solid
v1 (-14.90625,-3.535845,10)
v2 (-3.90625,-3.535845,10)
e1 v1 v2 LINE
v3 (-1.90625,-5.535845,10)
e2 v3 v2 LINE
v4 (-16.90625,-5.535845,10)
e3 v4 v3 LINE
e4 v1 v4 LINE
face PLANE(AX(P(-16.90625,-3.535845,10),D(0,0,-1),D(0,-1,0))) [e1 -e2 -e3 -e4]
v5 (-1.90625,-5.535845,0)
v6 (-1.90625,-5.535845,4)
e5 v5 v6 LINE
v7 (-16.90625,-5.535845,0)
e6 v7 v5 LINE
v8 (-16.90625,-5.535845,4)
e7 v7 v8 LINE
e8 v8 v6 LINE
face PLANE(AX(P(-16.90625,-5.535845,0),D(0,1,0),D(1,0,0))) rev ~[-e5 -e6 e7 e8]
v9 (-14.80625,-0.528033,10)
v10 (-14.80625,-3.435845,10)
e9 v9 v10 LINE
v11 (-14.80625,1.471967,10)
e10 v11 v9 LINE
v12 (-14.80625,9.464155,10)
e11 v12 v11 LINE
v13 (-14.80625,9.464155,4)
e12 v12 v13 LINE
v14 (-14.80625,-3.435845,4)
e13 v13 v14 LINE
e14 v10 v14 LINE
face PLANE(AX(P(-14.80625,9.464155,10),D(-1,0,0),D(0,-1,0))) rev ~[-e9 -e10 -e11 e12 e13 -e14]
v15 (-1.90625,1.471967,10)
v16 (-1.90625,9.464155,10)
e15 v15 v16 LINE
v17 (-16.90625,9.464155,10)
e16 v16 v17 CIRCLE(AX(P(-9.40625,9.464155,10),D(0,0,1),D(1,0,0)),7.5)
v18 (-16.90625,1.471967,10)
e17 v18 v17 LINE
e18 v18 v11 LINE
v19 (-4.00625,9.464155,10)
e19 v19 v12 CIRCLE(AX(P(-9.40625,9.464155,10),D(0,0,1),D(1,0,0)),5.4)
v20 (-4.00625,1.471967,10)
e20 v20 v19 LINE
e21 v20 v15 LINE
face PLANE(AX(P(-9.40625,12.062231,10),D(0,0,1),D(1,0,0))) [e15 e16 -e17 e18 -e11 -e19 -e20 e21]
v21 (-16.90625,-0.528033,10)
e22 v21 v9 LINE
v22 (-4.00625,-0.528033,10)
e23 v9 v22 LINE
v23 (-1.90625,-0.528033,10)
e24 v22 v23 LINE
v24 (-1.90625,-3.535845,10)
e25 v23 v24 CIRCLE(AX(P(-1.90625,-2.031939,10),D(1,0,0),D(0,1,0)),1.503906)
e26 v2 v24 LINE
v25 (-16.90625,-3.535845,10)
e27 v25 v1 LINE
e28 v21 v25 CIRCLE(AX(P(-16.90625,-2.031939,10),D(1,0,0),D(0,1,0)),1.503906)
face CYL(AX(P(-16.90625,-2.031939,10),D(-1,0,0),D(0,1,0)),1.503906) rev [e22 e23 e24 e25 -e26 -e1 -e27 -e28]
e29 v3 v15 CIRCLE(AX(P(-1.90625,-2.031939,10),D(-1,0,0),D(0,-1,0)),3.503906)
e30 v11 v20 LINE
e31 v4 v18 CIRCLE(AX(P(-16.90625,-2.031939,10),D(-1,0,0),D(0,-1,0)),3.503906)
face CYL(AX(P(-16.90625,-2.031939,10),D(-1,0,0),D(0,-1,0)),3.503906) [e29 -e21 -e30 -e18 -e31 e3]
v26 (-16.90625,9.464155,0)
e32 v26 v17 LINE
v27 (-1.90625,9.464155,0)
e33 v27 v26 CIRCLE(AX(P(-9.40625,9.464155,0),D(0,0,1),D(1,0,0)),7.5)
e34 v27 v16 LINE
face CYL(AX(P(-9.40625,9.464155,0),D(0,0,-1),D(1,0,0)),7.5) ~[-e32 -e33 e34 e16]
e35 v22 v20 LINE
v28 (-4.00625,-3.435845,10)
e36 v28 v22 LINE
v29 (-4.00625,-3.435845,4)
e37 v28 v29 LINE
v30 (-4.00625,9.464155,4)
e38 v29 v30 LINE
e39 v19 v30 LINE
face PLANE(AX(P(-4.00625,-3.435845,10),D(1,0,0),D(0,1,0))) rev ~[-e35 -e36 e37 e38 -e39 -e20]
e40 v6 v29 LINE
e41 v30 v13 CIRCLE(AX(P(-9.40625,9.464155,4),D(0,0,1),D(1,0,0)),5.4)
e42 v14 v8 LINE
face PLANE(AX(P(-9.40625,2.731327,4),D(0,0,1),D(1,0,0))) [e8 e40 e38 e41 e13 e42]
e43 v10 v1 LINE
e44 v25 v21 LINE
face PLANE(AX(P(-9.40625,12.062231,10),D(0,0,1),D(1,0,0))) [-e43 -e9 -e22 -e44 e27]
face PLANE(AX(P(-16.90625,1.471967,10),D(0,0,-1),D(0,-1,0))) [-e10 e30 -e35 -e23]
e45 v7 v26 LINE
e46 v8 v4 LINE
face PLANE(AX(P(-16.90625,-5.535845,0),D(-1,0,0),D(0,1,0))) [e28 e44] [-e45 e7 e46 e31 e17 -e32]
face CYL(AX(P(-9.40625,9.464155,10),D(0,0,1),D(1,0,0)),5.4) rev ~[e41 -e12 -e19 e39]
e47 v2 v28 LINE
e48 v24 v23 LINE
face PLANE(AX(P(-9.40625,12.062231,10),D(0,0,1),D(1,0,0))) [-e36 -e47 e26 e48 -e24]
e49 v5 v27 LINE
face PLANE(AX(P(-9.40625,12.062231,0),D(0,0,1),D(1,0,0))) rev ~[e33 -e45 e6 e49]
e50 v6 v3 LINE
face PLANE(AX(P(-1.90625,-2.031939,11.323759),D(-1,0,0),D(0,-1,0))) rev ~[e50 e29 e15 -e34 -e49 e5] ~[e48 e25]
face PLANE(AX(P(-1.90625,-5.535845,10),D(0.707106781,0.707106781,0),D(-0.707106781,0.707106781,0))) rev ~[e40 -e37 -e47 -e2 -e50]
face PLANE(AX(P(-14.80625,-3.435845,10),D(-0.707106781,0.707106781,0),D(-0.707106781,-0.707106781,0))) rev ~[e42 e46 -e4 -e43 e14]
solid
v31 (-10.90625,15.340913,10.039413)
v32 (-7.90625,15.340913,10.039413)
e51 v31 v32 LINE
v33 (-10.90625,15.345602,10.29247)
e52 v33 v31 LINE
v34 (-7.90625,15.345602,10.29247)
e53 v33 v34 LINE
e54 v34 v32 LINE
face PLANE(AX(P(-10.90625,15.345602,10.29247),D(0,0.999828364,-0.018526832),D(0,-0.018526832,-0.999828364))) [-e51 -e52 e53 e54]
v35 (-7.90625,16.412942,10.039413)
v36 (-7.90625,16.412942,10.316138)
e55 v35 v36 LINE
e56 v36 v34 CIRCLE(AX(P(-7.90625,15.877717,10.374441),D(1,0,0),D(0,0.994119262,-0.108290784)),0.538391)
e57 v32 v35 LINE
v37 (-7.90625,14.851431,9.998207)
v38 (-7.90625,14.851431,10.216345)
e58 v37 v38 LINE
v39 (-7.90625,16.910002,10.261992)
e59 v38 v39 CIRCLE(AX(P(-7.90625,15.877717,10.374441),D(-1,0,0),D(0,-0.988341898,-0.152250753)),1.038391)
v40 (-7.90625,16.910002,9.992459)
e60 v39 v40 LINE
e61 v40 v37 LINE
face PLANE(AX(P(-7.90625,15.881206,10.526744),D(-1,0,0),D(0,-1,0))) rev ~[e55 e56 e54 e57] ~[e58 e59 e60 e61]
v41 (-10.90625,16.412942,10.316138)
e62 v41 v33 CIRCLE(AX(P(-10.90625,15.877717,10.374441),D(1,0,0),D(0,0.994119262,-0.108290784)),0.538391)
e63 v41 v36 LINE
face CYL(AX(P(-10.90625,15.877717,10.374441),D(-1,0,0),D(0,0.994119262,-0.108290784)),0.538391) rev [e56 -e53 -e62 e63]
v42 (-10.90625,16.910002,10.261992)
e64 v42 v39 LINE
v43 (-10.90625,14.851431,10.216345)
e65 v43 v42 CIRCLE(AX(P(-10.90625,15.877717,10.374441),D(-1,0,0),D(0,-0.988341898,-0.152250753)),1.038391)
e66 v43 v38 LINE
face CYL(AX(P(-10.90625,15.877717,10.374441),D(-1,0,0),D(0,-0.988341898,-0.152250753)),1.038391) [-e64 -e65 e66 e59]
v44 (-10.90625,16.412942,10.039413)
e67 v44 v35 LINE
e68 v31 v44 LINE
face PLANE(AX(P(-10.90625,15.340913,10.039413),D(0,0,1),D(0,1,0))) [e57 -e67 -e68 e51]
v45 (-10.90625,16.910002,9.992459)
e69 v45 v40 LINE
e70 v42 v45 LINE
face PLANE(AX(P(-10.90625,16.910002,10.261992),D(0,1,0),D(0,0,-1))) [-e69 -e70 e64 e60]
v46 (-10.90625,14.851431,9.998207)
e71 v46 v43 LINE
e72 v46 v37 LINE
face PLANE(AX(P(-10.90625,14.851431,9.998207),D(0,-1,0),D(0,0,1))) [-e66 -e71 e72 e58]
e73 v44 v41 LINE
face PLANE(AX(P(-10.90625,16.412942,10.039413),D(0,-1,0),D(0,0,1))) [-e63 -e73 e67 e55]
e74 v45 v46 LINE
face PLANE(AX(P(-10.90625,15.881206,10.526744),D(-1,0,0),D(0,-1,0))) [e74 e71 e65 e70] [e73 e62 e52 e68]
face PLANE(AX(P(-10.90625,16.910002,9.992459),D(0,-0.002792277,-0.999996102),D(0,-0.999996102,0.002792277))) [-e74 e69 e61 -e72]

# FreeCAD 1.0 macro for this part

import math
import FreeCAD as App
import Part
import Sketcher
from FreeCAD import Vector
Q = App.Units.Quantity

doc = App.newDocument("Part")
body = doc.addObject("PartDesign::Body", "Body")

# Sketch on XY plane
sketch1 = body.newObject("Sketcher::SketchObject", "Sketch")
sketch1.AttachmentSupport = (doc.getObject("XY_Plane"), [""])
sketch1.MapMode = "FlatFace"
sketch1.addGeometry([
    Part.ArcOfCircle(Part.Circle(Vector(-9, 9, 0), Vector(0, 0, 1), 8), math.radians(0), math.radians(180)),
    Part.LineSegment(Vector(-17, 9, 0), Vector(-17, -6, 0)),
    Part.LineSegment(Vector(-17, -6, 0), Vector(-2, -6, 0)),
    Part.LineSegment(Vector(-2, -6, 0), Vector(-2, 9, 0)),
], False)
sketch1.addConstraint([
    Sketcher.Constraint("Tangent", 0, 2, 1, 1),
    Sketcher.Constraint("Coincident", 1, 2, 2, 1),
    Sketcher.Constraint("Coincident", 2, 2, 3, 1),
    Sketcher.Constraint("Tangent", 3, 2, 0, 1),
    Sketcher.Constraint("Vertical", 1),
    Sketcher.Constraint("Horizontal", 2),
    Sketcher.Constraint("Vertical", 3),
    Sketcher.Constraint("Equal", 2, 1),
    Sketcher.Constraint("Radius", 0, Q("7.5 mm")),
    Sketcher.Constraint("DistanceX", 0, 3, -1, 1, Q("9.40625 mm")),
    Sketcher.Constraint("DistanceY", -1, 1, 0, 3, Q("9.464155 mm")),
])
pad1 = body.newObject("PartDesign::Pad", "Pad")
pad1.Profile = sketch1
pad1.Length = 10

# Sketch on XY plane
sketch2 = body.newObject("Sketcher::SketchObject", "Sketch001")
sketch2.AttachmentSupport = (doc.getObject("XY_Plane"), [""])
sketch2.MapMode = "FlatFace"
sketch2.AttachmentOffset = App.Placement(Vector(0, 0, 10), App.Rotation())
sketch2.addGeometry([
    Part.ArcOfCircle(Part.Circle(Vector(-9.4, 9.5, 0), Vector(0, 0, 1), 5.4), math.radians(0), math.radians(180)),  # 0
    Part.LineSegment(Vector(-14.8, 9.5, 0), Vector(-14.8, -3.4, 0)),  # 1
    Part.LineSegment(Vector(-14.8, -3.4, 0), Vector(-16.9, -5.5, 0)),  # 2
    Part.LineSegment(Vector(-16.9, -5.5, 0), Vector(-1.9, -5.5, 0)),  # 3
    Part.LineSegment(Vector(-1.9, -5.5, 0), Vector(-4, -3.4, 0)),  # 4
    Part.LineSegment(Vector(-4, -3.4, 0), Vector(-4, 9.5, 0)),  # 5
], False)
sketch2.addConstraint([
    Sketcher.Constraint("Tangent", 0, 2, 1, 1),
    Sketcher.Constraint("Coincident", 1, 2, 2, 1),
    Sketcher.Constraint("Coincident", 2, 2, 3, 1),
    Sketcher.Constraint("Coincident", 3, 2, 4, 1),
    Sketcher.Constraint("Coincident", 4, 2, 5, 1),
    Sketcher.Constraint("Tangent", 5, 2, 0, 1),
    Sketcher.Constraint("Vertical", 1),
    Sketcher.Constraint("Horizontal", 3),
    Sketcher.Constraint("Vertical", 5),
    Sketcher.Constraint("Perpendicular", 2, 4),
    Sketcher.Constraint("Horizontal", 1, 2, 4, 2),
    Sketcher.Constraint("Equal", 2, 4),
    Sketcher.Constraint("Radius", 0, Q("5.4 mm")),
    Sketcher.Constraint("DistanceX", 3, 1, 3, 2, Q("15 mm")),
    Sketcher.Constraint("DistanceY", 1, 2, 1, 1, Q("12.9 mm")),
    Sketcher.Constraint("DistanceX", 0, 3, -1, 1, Q("9.40625 mm")),
    Sketcher.Constraint("DistanceY", -1, 1, 0, 3, Q("9.464155 mm")),
])
pocket1 = body.newObject("PartDesign::Pocket", "Pocket")
pocket1.Profile = sketch2
pocket1.Length = 6

# Sketch on YZ plane
sketch3 = body.newObject("Sketcher::SketchObject", "Sketch002")
sketch3.AttachmentSupport = (doc.getObject("YZ_Plane"), [""])
sketch3.MapMode = "FlatFace"
sketch3.AttachmentOffset = App.Placement(Vector(0, 0, -16.90625), App.Rotation())
sketch3.addGeometry([
    Part.LineSegment(Vector(-3.5, 10, 0), Vector(-5.5, 10, 0)),
    Part.ArcOfCircle(Part.Circle(Vector(-2, 10, 0), Vector(0, 0, 1), 3.5), math.radians(0), math.radians(180)),
    Part.LineSegment(Vector(1.5, 10, 0), Vector(-0.5, 10, 0)),
    Part.ArcOfCircle(Part.Circle(Vector(-2, 10, 0), Vector(0, 0, 1), 1.5), math.radians(0), math.radians(180)),
], False)
sketch3.addConstraint([
    Sketcher.Constraint("Coincident", 0, 2, 1, 2),
    Sketcher.Constraint("Coincident", 1, 1, 2, 1),
    Sketcher.Constraint("Coincident", 2, 2, 3, 1),
    Sketcher.Constraint("Coincident", 3, 2, 0, 1),
    Sketcher.Constraint("Horizontal", 0),
    Sketcher.Constraint("Horizontal", 2),
    Sketcher.Constraint("Coincident", 3, 3, 1, 3),
    Sketcher.Constraint("Horizontal", 3, 3, 0, 2),
    Sketcher.Constraint("Horizontal", 0, 2, 1, 1),
    Sketcher.Constraint("DistanceX", 0, 2, 0, 1, Q("2 mm")),
    Sketcher.Constraint("DistanceY", -1, 1, 1, 3, Q("10 mm")),
    Sketcher.Constraint("Radius", 1, Q("3.503906 mm")),
    Sketcher.Constraint("DistanceX", 1, 3, -1, 1, Q("2.031939 mm")),
])
pad2 = body.newObject("PartDesign::Pad", "Pad001")
pad2.Profile = sketch3
pad2.Length = 15
body2 = doc.addObject("PartDesign::Body", "Body001")

# Sketch on YZ plane
sketch4 = body2.newObject("Sketcher::SketchObject", "Sketch003")
sketch4.AttachmentSupport = (doc.getObject("YZ_Plane001"), [""])
sketch4.MapMode = "FlatFace"
sketch4.AttachmentOffset = App.Placement(Vector(0, 0, -10.90625), App.Rotation())
sketch4.addGeometry([
    Part.LineSegment(Vector(14.85, 10, 0), Vector(14.85, 10.22, 0)),  # 0
    Part.ArcOfCircle(Part.Circle(Vector(15.88, 10.37, 0), Vector(0, 0, 1), 1.04), math.radians(-6), math.radians(189)),  # 1
    Part.LineSegment(Vector(16.91, 10.26, 0), Vector(16.91, 9.99, 0)),  # 2
    Part.LineSegment(Vector(16.91, 9.99, 0), Vector(14.85, 10, 0)),  # 3
    Part.LineSegment(Vector(16.41, 10.04, 0), Vector(16.41, 10.32, 0)),  # 4
    Part.ArcOfCircle(Part.Circle(Vector(15.88, 10.37, 0), Vector(0, 0, 1), 0.54), math.radians(-6), math.radians(189)),  # 5
    Part.LineSegment(Vector(15.35, 10.29, 0), Vector(15.34, 10.04, 0)),  # 6
    Part.LineSegment(Vector(15.34, 10.04, 0), Vector(16.41, 10.04, 0)),  # 7
], False)
sketch4.addConstraint([
    Sketcher.Constraint("Coincident", 0, 2, 1, 2),
    Sketcher.Constraint("Coincident", 1, 1, 2, 1),
    Sketcher.Constraint("Coincident", 2, 2, 3, 1),
    Sketcher.Constraint("Coincident", 3, 2, 0, 1),
    Sketcher.Constraint("Coincident", 4, 2, 5, 1),
    Sketcher.Constraint("Coincident", 5, 2, 6, 1),
    Sketcher.Constraint("Coincident", 6, 2, 7, 1),
    Sketcher.Constraint("Coincident", 7, 2, 4, 1),
    Sketcher.Constraint("Vertical", 0),
    Sketcher.Constraint("Vertical", 2),
    Sketcher.Constraint("Vertical", 4),
    Sketcher.Constraint("Horizontal", 7),
    Sketcher.Constraint("Coincident", 5, 3, 1, 3),
    Sketcher.Constraint("Angle", 3, Q("179.840014 deg")),
    Sketcher.Constraint("DistanceX", -1, 1, 1, 1, Q("16.910002 mm")),
    Sketcher.Constraint("Radius", 1, Q("1.038391 mm")),
    Sketcher.Constraint("Radius", 5, Q("0.538391 mm")),
    Sketcher.Constraint("Distance", 6, Q("0.2531 mm")),
    Sketcher.Constraint("DistanceX", 7, 1, 7, 2, Q("1.072029 mm")),
    Sketcher.Constraint("Distance", 3, Q("2.058579 mm")),
    Sketcher.Constraint("DistanceY", 0, 1, 0, 2, Q("0.218138 mm")),
    Sketcher.Constraint("DistanceY", 2, 2, 2, 1, Q("0.269534 mm")),
    Sketcher.Constraint("DistanceY", 4, 1, 4, 2, Q("0.276724 mm")),
    Sketcher.Constraint("DistanceY", -1, 1, 1, 3, Q("10.374441 mm")),
    Sketcher.Constraint("DistanceY", -1, 1, 5, 2, Q("10.29247 mm")),
])
pad3 = body2.newObject("PartDesign::Pad", "Pad002")
pad3.Profile = sketch4
pad3.Length = 3

doc.recompute()
